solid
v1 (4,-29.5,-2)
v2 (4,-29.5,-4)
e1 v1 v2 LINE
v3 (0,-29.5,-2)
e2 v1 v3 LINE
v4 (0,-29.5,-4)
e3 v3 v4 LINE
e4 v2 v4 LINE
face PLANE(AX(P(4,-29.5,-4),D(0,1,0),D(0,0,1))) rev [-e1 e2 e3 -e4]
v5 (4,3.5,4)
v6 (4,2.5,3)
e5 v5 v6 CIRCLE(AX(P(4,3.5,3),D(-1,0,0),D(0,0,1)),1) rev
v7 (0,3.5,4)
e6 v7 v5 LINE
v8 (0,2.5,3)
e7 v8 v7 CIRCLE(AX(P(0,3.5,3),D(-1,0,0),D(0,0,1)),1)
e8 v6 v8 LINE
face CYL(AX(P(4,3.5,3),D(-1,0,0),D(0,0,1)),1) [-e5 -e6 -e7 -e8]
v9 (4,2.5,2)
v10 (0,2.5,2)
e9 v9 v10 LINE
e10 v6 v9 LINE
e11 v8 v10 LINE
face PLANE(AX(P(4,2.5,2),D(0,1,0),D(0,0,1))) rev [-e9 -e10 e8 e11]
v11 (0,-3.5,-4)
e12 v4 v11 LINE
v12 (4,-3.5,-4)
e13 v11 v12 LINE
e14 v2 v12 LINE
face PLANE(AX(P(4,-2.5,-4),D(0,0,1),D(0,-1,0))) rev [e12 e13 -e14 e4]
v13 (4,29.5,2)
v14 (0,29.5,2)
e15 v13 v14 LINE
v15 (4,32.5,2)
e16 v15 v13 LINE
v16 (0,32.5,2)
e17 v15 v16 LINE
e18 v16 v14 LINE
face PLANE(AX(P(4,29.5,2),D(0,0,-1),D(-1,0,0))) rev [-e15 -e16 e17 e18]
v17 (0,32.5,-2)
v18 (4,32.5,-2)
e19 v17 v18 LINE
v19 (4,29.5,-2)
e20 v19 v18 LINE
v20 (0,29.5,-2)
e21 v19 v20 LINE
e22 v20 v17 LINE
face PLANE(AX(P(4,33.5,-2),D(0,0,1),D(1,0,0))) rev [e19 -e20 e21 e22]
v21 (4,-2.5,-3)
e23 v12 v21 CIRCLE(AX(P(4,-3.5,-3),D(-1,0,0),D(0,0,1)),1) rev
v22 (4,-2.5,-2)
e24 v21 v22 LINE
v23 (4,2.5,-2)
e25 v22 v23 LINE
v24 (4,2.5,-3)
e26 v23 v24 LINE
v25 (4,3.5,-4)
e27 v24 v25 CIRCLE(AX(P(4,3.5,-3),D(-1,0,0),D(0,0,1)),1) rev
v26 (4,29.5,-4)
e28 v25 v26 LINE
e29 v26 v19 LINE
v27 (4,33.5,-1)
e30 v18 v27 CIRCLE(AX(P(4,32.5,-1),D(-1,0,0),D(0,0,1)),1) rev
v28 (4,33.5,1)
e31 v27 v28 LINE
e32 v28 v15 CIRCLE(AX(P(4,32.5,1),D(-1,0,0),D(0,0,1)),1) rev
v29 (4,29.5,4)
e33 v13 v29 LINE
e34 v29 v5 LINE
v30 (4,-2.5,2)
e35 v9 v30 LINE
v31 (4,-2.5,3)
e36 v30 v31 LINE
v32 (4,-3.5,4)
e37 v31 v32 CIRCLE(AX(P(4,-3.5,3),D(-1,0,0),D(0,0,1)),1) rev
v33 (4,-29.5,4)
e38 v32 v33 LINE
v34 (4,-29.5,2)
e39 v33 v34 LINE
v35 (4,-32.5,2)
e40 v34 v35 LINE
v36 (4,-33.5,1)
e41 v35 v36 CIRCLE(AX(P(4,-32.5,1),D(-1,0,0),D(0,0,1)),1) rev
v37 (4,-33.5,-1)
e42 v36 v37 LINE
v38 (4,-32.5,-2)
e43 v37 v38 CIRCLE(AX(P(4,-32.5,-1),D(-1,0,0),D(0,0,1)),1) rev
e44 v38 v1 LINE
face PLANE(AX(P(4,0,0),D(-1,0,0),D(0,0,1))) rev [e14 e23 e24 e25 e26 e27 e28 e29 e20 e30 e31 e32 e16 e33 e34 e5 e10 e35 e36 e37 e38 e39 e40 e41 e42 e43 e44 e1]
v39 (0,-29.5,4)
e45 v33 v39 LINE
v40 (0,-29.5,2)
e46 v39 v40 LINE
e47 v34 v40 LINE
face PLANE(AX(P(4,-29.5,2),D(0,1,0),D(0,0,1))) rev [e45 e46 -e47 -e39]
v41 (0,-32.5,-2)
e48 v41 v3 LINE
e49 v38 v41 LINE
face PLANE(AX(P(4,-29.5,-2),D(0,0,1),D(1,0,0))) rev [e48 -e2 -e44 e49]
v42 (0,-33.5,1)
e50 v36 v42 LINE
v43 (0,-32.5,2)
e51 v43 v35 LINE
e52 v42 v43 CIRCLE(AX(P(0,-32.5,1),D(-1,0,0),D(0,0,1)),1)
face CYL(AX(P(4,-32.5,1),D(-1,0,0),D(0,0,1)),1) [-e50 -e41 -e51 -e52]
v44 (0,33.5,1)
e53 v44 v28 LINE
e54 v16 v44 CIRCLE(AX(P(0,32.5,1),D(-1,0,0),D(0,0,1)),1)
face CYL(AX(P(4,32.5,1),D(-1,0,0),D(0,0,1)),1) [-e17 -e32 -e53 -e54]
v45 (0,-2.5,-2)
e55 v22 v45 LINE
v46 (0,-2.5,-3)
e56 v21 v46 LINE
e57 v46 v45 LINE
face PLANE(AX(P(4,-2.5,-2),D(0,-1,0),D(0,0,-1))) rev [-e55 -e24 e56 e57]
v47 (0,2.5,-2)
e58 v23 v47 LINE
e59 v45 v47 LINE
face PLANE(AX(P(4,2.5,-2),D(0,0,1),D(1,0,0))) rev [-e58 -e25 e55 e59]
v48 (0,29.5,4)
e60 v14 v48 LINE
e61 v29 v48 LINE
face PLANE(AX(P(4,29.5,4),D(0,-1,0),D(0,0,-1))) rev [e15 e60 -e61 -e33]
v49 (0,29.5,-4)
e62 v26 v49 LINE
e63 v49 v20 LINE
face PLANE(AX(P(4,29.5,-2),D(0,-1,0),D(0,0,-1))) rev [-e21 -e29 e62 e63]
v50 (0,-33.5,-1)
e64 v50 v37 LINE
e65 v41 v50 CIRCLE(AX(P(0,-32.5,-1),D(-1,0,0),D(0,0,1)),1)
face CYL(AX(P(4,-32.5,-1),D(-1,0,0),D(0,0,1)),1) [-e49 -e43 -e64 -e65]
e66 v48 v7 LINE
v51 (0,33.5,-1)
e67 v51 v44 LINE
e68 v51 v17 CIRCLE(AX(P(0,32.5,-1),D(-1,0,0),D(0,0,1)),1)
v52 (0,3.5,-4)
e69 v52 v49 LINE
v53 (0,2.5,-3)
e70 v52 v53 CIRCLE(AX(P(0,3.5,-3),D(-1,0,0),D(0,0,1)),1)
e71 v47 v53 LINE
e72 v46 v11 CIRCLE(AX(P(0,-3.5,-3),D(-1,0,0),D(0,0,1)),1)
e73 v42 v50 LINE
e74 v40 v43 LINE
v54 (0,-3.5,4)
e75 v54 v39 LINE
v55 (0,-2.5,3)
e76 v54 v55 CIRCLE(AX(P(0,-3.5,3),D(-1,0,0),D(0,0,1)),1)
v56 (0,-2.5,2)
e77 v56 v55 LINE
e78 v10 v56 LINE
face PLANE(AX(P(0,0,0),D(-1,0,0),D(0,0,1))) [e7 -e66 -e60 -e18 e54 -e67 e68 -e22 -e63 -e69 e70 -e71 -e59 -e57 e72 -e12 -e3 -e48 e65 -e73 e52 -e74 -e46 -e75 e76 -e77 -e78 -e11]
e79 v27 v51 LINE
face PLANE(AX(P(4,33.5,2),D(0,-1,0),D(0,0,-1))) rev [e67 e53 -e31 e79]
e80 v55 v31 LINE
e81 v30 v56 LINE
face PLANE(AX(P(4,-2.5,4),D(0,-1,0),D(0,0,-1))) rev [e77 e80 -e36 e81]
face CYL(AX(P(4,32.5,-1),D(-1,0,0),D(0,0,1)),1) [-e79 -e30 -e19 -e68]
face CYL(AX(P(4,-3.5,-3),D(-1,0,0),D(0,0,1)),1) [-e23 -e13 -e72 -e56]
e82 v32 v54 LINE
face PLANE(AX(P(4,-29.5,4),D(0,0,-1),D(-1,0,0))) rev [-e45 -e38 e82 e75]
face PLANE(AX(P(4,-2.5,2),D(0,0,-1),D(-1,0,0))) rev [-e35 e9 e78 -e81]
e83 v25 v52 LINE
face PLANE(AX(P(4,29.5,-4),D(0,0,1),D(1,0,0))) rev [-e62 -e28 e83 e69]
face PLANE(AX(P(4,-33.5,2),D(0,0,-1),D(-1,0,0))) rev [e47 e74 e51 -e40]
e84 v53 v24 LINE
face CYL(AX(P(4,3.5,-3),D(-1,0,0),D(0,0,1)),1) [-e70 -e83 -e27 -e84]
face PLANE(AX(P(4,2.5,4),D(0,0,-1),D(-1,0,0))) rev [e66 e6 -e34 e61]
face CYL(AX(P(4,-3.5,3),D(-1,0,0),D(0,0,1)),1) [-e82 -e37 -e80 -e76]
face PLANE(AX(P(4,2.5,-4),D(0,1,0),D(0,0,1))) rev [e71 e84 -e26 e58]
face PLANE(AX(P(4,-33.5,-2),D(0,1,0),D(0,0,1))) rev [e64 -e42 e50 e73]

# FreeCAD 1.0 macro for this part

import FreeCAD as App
import Part
import Sketcher

V = App.Vector


def edges_at(feature, points):
    """Names of the edges that pass closest to the given points."""
    edges = feature.Shape.Edges
    near = lambda p: min(range(len(edges)), key=lambda i: edges[i].distToShape(Part.Vertex(*p))[0])
    return sorted({f"Edge{near(p) + 1}" for p in points})


def add_polygon(sketch, points):
    """Adds a closed chain of lines whose ends are joined by coincident constraints."""
    first, n = sketch.GeometryCount, len(points)
    for a, b in zip(points, points[1:] + points[:1]):
        sketch.addGeometry(Part.LineSegment(App.Vector(*a, 0), App.Vector(*b, 0)), False)
    for i in range(n):
        sketch.addConstraint(Sketcher.Constraint("Coincident", first + i, 2, first + (i + 1) % n, 1))

doc = App.newDocument("Part")
body = doc.addObject("PartDesign::Body", "Body")

# Sketch on YZ plane
sketch1 = body.newObject("Sketcher::SketchObject", "Sketch")
sketch1.AttachmentSupport = (doc.getObject("YZ_Plane"), [""])
sketch1.MapMode = "FlatFace"
add_polygon(sketch1, [(-33.5, 2), (-33.5, -2), (-29.5, -2), (-29.5, -4), (-2.5, -4), (-2.5, -2), (2.5, -2), (2.5, -4), (29.5, -4), (29.5, -2), (33.5, -2), (33.5, 2), (29.5, 2), (29.5, 4), (2.5, 4), (2.5, 2), (-2.5, 2), (-2.5, 4), (-29.5, 4), (-29.5, 2)])  # lines 0-19
sketch1.addConstraint([
    Sketcher.Constraint("Vertical", 0),
    Sketcher.Constraint("Horizontal", 1),
    Sketcher.Constraint("Vertical", 2),
    Sketcher.Constraint("Horizontal", 3),
    Sketcher.Constraint("Vertical", 4),
    Sketcher.Constraint("Horizontal", 5),
    Sketcher.Constraint("Vertical", 6),
    Sketcher.Constraint("Horizontal", 7),
    Sketcher.Constraint("Vertical", 8),
    Sketcher.Constraint("Horizontal", 9),
    Sketcher.Constraint("Vertical", 10),
    Sketcher.Constraint("Horizontal", 11),
    Sketcher.Constraint("Vertical", 12),
    Sketcher.Constraint("Horizontal", 13),
    Sketcher.Constraint("Vertical", 14),
    Sketcher.Constraint("Horizontal", 15),
    Sketcher.Constraint("Vertical", 16),
    Sketcher.Constraint("Horizontal", 17),
    Sketcher.Constraint("Vertical", 18),
    Sketcher.Constraint("Horizontal", 19),
    Sketcher.Constraint("Symmetric", 0, 2, 10, 2, -1, 1),
    Sketcher.Constraint("Symmetric", 2, 2, 12, 2, -1, 1),
    Sketcher.Constraint("Symmetric", 4, 2, 14, 2, -1, 1),
    Sketcher.Constraint("Symmetric", 6, 2, 16, 2, -1, 1),
    Sketcher.Constraint("Symmetric", 8, 2, 18, 2, -1, 1),
    Sketcher.Constraint("Symmetric", 3, 2, 6, 2, -2),
    Sketcher.Constraint("Symmetric", 1, 2, 8, 2, -2),
    Sketcher.Constraint("Horizontal", 1, 2, 4, 2),
    Sketcher.Constraint("Equal", 19, 0),
    Sketcher.Constraint("DistanceX", 1, 1, 1, 2, 4.0),
    Sketcher.Constraint("DistanceX", 3, 1, 3, 2, 27.0),
    Sketcher.Constraint("DistanceX", 5, 1, 5, 2, 5.0),
    Sketcher.Constraint("DistanceY", 2, 2, 2, 1, 2.0),
])
pad1 = body.newObject("PartDesign::Pad", "Pad")
pad1.Profile = sketch1
pad1.Length = 4
doc.recompute()

fillet = body.newObject("PartDesign::Fillet", "Fillet")
fillet.Base = (pad1, edges_at(pad1, [
    (2, -2.5, 4),
    (2, 2.5, 4),
    (2, 2.5, -4),
    (2, -2.5, -4),
]))
fillet.Radius = 1
doc.recompute()

fillet2 = body.newObject("PartDesign::Fillet", "Fillet001")
fillet2.Base = (fillet, edges_at(fillet, [
    (2, -33.5, -2),
    (2, -33.5, 2),
    (2, 33.5, 2),
    (2, 33.5, -2),
]))
fillet2.Radius = 1

doc.recompute()
